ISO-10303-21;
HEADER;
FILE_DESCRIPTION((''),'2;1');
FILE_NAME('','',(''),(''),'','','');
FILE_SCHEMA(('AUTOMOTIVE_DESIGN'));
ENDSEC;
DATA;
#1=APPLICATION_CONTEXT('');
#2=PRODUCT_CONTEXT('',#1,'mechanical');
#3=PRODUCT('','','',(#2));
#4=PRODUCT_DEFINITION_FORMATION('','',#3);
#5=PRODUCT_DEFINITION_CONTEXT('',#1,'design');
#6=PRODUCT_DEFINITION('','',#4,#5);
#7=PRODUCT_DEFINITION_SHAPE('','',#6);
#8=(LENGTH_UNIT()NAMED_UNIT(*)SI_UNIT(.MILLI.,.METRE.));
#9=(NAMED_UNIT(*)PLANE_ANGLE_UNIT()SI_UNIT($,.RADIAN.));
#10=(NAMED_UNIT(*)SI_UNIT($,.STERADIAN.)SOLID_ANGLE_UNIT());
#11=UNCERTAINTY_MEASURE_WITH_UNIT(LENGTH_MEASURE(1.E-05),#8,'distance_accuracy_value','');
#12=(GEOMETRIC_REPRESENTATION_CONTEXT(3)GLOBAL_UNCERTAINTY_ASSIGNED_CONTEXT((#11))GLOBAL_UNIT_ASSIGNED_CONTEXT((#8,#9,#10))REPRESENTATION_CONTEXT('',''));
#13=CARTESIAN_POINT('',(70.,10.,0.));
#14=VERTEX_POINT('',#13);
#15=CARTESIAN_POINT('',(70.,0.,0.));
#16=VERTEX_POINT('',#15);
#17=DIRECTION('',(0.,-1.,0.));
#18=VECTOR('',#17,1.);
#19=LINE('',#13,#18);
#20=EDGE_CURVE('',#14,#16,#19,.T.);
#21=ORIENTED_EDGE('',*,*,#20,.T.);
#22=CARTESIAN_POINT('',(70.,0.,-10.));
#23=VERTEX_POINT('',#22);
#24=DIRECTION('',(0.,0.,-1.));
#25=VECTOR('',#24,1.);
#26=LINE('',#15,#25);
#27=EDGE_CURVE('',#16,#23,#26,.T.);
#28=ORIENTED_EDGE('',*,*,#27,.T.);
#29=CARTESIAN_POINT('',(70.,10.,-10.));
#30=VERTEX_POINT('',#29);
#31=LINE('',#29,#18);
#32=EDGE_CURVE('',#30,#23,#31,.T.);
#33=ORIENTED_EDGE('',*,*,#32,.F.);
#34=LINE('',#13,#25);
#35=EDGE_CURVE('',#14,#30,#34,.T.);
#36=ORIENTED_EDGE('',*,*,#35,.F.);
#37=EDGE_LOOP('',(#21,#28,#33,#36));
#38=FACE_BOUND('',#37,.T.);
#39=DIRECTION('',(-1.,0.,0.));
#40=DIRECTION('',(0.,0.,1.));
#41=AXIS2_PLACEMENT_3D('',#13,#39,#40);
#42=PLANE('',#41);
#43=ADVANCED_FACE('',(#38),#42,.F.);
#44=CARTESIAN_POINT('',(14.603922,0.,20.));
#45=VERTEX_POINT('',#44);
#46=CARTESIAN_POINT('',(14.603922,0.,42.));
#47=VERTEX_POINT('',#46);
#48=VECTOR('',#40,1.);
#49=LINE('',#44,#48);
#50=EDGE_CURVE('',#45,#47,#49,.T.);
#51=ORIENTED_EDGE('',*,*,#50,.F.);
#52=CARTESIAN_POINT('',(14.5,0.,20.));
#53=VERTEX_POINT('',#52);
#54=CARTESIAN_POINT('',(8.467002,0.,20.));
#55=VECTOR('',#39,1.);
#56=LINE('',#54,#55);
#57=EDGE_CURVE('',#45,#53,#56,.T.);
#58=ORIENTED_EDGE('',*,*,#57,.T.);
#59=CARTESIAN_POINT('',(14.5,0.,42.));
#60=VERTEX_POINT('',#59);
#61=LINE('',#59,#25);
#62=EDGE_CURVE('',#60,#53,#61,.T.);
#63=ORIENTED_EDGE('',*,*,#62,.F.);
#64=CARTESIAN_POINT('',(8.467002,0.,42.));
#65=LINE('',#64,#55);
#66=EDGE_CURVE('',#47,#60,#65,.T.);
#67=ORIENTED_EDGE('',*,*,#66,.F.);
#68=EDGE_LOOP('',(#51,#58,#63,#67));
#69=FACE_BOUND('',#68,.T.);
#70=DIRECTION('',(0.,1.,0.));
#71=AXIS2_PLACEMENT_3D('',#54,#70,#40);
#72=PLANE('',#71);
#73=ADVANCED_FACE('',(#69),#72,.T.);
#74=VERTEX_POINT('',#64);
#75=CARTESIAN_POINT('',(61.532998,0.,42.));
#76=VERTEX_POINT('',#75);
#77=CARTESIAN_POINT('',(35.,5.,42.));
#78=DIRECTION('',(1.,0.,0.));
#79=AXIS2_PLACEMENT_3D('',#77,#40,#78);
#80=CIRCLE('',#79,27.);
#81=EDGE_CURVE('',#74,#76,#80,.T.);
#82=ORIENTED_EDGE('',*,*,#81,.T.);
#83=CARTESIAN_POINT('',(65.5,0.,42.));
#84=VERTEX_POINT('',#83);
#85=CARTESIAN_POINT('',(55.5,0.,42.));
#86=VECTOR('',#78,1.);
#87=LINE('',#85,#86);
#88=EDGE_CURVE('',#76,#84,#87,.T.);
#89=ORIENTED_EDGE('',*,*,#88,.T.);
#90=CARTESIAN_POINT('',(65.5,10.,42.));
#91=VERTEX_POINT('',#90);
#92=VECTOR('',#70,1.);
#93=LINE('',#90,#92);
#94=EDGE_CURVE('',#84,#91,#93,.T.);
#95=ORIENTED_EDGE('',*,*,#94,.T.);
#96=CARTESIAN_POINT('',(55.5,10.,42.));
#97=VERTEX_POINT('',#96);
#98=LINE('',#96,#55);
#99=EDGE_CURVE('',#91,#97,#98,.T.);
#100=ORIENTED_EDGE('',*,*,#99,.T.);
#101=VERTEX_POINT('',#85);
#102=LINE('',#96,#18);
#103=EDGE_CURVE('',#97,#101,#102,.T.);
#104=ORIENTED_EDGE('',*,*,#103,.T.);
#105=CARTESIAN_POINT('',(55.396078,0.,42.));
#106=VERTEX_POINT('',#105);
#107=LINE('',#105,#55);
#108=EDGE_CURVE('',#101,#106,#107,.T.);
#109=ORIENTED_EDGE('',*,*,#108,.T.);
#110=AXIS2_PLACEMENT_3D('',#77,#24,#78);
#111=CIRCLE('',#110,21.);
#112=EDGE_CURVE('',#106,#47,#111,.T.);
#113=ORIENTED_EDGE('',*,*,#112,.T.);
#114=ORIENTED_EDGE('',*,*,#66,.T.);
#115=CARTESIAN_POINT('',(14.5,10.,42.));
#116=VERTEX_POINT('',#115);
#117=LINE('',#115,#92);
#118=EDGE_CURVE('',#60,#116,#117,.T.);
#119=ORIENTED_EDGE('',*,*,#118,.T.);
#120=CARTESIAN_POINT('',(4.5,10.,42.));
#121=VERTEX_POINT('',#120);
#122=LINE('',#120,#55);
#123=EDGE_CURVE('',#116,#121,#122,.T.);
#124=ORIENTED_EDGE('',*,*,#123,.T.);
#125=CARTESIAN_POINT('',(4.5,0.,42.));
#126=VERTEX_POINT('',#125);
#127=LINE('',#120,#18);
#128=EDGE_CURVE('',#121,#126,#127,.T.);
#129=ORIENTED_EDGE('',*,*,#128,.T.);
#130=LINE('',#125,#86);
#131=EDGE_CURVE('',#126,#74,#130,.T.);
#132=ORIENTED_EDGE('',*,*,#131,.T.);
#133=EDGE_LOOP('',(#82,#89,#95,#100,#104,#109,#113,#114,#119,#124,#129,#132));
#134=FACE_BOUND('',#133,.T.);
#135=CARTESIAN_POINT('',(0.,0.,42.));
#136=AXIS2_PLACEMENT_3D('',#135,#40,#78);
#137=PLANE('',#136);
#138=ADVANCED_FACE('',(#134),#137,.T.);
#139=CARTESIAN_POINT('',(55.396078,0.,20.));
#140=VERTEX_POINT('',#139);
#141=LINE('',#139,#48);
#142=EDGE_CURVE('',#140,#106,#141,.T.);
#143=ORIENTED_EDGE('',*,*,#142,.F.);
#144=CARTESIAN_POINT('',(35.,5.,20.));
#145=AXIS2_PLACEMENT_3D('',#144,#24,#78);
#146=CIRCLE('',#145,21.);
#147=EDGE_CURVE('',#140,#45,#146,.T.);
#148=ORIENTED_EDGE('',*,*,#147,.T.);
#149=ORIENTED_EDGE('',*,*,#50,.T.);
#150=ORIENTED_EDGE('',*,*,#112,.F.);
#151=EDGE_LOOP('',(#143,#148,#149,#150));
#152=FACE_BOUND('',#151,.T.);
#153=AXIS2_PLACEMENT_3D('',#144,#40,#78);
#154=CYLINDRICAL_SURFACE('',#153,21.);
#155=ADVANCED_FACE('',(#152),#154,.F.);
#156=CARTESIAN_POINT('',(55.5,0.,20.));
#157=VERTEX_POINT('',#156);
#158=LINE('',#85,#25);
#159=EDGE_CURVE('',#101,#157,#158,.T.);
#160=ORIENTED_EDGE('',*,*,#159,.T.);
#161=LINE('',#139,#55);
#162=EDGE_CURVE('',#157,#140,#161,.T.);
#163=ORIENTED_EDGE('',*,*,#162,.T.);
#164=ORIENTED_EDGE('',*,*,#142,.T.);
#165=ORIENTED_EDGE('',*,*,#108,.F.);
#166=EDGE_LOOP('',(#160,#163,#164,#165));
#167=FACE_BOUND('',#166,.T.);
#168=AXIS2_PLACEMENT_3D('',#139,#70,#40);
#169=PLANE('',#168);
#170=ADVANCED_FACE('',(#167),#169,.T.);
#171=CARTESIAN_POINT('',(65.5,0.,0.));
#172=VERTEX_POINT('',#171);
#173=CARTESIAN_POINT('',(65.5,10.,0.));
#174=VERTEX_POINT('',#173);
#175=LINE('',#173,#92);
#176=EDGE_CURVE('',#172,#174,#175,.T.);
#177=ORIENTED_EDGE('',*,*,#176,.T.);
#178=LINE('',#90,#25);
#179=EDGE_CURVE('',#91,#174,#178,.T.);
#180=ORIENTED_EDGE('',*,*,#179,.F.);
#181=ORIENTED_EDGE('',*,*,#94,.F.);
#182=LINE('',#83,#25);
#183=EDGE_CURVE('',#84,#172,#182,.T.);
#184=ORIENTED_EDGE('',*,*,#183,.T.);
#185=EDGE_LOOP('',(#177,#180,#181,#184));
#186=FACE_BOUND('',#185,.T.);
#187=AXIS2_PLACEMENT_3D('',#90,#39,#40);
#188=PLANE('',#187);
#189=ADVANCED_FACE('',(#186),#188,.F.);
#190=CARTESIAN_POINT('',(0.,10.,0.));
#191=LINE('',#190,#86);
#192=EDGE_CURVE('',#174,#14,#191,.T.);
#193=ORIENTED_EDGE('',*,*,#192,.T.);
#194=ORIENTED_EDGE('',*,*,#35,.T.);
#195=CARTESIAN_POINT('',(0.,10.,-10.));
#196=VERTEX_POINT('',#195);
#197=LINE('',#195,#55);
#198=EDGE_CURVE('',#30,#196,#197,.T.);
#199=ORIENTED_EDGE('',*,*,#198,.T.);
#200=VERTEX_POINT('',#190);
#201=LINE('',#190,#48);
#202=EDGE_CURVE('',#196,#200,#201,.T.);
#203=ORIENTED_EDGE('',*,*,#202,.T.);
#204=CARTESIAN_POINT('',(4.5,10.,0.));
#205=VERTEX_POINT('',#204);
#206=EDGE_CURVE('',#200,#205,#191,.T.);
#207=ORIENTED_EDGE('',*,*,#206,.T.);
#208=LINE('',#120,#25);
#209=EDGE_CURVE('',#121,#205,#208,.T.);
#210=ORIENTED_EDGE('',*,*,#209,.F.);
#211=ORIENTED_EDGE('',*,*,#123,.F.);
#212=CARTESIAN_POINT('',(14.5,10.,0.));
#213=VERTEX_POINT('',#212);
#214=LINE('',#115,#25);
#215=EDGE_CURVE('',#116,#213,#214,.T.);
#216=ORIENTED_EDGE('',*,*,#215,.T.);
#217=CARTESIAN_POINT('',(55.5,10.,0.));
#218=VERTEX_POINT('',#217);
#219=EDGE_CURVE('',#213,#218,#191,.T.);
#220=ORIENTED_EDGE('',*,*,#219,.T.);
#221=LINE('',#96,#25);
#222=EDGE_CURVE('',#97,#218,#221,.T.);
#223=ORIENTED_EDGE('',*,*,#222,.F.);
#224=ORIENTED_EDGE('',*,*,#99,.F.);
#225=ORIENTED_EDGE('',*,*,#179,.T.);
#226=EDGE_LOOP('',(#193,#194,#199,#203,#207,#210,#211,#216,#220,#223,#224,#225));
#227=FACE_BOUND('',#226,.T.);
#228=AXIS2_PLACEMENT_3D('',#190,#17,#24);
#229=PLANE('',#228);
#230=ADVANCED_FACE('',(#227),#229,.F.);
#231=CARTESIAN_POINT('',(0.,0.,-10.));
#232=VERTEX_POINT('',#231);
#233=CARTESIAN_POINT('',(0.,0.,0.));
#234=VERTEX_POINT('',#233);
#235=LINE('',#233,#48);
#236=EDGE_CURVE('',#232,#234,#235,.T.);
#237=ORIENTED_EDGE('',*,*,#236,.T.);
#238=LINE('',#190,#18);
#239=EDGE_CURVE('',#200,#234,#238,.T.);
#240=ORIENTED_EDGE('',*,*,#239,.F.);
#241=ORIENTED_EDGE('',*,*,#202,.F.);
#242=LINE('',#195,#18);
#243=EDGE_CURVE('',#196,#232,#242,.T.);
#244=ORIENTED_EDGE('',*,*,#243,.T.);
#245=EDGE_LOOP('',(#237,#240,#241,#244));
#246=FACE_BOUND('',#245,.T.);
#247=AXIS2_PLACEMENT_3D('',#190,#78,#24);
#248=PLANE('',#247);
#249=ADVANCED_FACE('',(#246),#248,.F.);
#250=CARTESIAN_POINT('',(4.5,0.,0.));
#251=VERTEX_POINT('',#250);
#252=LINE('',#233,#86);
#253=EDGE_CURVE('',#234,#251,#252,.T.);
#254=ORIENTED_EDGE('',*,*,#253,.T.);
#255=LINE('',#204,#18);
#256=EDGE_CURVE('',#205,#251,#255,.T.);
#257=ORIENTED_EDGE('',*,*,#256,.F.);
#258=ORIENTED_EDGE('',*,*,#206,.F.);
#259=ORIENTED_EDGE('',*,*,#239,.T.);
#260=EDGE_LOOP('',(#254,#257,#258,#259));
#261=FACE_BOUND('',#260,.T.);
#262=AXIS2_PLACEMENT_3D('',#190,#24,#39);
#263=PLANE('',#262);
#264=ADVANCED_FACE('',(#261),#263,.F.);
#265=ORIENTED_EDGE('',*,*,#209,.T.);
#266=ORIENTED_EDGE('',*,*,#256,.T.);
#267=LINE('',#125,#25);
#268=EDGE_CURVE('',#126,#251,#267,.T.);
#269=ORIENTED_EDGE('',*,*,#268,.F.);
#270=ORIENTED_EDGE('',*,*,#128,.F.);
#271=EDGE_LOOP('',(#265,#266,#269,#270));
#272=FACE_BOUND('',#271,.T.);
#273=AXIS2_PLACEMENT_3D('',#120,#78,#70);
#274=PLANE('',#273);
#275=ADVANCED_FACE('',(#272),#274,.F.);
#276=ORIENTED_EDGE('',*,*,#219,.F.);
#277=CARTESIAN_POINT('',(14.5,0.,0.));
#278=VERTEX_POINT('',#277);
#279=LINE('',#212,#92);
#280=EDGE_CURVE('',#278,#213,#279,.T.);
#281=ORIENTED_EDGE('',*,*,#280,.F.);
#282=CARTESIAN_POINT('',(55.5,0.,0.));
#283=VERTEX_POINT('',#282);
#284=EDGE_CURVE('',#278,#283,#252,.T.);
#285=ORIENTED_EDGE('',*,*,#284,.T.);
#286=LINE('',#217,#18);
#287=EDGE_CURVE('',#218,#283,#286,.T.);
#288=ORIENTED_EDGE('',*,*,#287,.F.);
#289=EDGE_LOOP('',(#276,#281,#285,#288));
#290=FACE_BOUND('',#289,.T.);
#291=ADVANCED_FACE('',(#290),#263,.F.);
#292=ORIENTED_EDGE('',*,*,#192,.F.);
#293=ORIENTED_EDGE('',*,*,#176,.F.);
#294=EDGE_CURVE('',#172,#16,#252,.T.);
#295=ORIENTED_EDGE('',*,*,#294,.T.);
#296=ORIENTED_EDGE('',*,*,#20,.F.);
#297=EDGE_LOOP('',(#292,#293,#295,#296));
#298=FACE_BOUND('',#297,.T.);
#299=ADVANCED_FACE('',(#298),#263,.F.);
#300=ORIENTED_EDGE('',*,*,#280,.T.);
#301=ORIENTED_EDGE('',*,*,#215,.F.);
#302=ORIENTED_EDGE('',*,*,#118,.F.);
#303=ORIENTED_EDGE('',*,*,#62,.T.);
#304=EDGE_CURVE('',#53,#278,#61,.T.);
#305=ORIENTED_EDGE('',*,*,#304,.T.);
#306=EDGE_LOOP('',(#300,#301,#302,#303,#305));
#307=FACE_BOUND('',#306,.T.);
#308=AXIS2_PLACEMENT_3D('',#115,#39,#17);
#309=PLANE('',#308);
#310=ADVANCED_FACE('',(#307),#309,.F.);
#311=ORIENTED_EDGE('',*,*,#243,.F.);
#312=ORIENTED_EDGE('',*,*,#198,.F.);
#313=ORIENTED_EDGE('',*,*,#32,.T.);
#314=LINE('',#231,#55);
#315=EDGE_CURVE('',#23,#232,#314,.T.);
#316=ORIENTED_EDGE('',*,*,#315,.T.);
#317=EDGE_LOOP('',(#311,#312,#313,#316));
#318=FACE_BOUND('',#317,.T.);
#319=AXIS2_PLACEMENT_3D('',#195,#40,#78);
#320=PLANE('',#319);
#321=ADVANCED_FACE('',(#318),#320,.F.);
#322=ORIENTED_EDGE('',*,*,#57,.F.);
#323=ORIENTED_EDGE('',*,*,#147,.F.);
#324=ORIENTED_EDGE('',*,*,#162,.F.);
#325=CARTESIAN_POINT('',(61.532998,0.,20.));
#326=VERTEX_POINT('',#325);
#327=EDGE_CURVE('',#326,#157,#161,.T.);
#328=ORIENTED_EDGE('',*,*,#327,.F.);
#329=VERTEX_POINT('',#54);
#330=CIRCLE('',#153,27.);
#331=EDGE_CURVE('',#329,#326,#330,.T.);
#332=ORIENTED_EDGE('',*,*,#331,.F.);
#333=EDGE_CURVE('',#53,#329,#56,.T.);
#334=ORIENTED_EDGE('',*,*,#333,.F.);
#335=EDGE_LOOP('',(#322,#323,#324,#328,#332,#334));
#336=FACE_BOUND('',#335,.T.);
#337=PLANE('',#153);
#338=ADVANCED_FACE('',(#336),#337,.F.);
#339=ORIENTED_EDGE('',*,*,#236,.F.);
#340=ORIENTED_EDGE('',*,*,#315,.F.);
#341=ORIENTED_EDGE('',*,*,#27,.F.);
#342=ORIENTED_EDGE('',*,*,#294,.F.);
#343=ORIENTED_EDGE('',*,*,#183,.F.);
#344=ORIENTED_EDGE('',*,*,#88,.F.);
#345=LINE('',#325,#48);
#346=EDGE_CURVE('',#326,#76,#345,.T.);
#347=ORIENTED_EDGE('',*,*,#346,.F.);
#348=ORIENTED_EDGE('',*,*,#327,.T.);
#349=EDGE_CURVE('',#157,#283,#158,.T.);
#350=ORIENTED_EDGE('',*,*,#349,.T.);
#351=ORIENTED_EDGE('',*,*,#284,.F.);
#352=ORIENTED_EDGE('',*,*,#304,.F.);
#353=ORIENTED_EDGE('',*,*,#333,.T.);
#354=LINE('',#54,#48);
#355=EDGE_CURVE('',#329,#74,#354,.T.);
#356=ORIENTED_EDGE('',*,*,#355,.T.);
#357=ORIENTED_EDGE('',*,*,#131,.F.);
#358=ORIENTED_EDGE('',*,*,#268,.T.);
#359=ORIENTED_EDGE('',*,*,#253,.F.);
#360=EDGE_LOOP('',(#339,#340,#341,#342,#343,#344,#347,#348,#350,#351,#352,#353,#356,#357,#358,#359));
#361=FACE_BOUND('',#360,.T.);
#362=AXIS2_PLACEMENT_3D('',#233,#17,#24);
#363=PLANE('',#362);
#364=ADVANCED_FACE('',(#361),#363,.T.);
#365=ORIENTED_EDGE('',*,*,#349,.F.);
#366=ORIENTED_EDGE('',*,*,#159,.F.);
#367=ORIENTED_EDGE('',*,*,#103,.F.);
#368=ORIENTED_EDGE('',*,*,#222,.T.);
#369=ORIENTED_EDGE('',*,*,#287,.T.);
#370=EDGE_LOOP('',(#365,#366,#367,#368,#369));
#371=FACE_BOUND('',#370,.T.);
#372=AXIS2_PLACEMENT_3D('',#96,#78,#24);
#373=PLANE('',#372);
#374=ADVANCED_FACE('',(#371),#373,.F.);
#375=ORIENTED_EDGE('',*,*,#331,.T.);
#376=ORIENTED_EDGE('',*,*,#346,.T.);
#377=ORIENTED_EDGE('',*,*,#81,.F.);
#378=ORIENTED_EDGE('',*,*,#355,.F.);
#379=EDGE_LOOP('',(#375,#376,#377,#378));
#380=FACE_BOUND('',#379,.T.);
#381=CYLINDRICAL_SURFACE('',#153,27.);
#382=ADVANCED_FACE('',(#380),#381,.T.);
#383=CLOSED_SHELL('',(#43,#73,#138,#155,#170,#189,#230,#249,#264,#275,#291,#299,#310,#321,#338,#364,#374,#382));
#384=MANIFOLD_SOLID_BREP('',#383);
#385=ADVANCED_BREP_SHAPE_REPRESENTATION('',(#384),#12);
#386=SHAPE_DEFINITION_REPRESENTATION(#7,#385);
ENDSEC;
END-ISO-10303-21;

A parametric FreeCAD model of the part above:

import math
import FreeCAD as App
import Part
import Sketcher
from FreeCAD import Vector
Q = App.Units.Quantity


def add_polygon(sketch, points):
    """Adds a closed chain of lines whose ends are joined by coincident constraints."""
    first, n = sketch.GeometryCount, len(points)
    for a, b in zip(points, points[1:] + points[:1]):
        sketch.addGeometry(Part.LineSegment(App.Vector(*a, 0), App.Vector(*b, 0)), False)
    for i in range(n):
        sketch.addConstraint(Sketcher.Constraint("Coincident", first + i, 2, first + (i + 1) % n, 1))

doc = App.newDocument("Part")
body = doc.addObject("PartDesign::Body", "Body")

sketch1 = body.newObject("Sketcher::SketchObject", "Sketch")
sketch1.AttachmentSupport = (doc.getObject("XZ_Plane"), [""])
sketch1.MapMode = "FlatFace"
add_polygon(sketch1, [(0, -10), (0, 0), (70, 0), (70, -10)])
sketch1.addConstraint([
    Sketcher.Constraint("Vertical", 0),
    Sketcher.Constraint("Horizontal", 1),
    Sketcher.Constraint("Vertical", 2),
    Sketcher.Constraint("Horizontal", 3),
    Sketcher.Constraint("Coincident", 0, 2, -1, 1),
    Sketcher.Constraint("DistanceX", 1, 1, 1, 2, Q("70 mm")),
    Sketcher.Constraint("DistanceY", 0, 1, 0, 2, Q("10 mm")),
])
pad1 = body.newObject("PartDesign::Pad", "Pad")
pad1.Profile = sketch1
pad1.Length = 10
pad1.Reversed = True

sketch2 = body.newObject("Sketcher::SketchObject", "Sketch001")
sketch2.AttachmentSupport = (doc.getObject("XY_Plane"), [""])
sketch2.MapMode = "FlatFace"
add_polygon(sketch2, [(4, 10), (4, 0), (14, 0), (14, 10)])
add_polygon(sketch2, [(56, 10), (56, 0), (66, 0), (66, 10)])
sketch2.addConstraint([
    Sketcher.Constraint("Vertical", 0),
    Sketcher.Constraint("Horizontal", 1),
    Sketcher.Constraint("Vertical", 2),
    Sketcher.Constraint("Horizontal", 3),
    Sketcher.Constraint("Vertical", 4),
    Sketcher.Constraint("Horizontal", 5),
    Sketcher.Constraint("Vertical", 6),
    Sketcher.Constraint("Horizontal", 7),
    Sketcher.Constraint("PointOnObject", 0, 2, -1),
    Sketcher.Constraint("PointOnObject", 4, 2, -1),
    Sketcher.Constraint("Horizontal", 3, 2, 6, 2),
    Sketcher.Constraint("Equal", 3, 5),
    Sketcher.Constraint("Equal", 7, 0),
    Sketcher.Constraint("DistanceX", 1, 1, 1, 2, Q("10 mm")),
    Sketcher.Constraint("DistanceX", 1, 2, 4, 2, Q("41 mm")),
    Sketcher.Constraint("DistanceX", -1, 1, 0, 2, Q("4.5 mm")),
])
pad2 = body.newObject("PartDesign::Pad", "Pad001")
pad2.Profile = sketch2
pad2.Length = 42

sketch3 = body.newObject("Sketcher::SketchObject", "Sketch002")
sketch3.AttachmentSupport = (doc.getObject("XY_Plane"), [""])
sketch3.MapMode = "FlatFace"
sketch3.AttachmentOffset = App.Placement(Vector(0, 0, 42), App.Rotation())
sketch3.addGeometry([
    Part.LineSegment(Vector(15, 0, 0), Vector(8, 0, 0)),
    Part.ArcOfCircle(Part.Circle(Vector(35, 5, 0), Vector(0, 0, 1), 27), math.radians(-169), math.radians(-11)),
    Part.LineSegment(Vector(62, 0, 0), Vector(55, 0, 0)),
    Part.ArcOfCircle(Part.Circle(Vector(35, 5, 0), Vector(0, 0, 1), 21), math.radians(-166), math.radians(-14)),
], False)
sketch3.addConstraint([
    Sketcher.Constraint("Coincident", 0, 2, 1, 1),
    Sketcher.Constraint("Coincident", 1, 2, 2, 1),
    Sketcher.Constraint("Coincident", 2, 2, 3, 2),
    Sketcher.Constraint("Coincident", 3, 1, 0, 1),
    Sketcher.Constraint("Horizontal", 0),
    Sketcher.Constraint("Horizontal", 2),
    Sketcher.Constraint("Coincident", 3, 3, 1, 3),
    Sketcher.Constraint("PointOnObject", 0, 2, -1),
    Sketcher.Constraint("PointOnObject", 1, 2, -1),
    Sketcher.Constraint("Radius", 1, Q("27 mm")),
    Sketcher.Constraint("Radius", 3, Q("21 mm")),
    Sketcher.Constraint("DistanceX", -1, 1, 1, 3, Q("35 mm")),
    Sketcher.Constraint("DistanceY", -1, 1, 1, 3, Q("5 mm")),
])
pad3 = body.newObject("PartDesign::Pad", "Pad002")
pad3.Profile = sketch3
pad3.Length = 22
pad3.Reversed = True

doc.recompute()
